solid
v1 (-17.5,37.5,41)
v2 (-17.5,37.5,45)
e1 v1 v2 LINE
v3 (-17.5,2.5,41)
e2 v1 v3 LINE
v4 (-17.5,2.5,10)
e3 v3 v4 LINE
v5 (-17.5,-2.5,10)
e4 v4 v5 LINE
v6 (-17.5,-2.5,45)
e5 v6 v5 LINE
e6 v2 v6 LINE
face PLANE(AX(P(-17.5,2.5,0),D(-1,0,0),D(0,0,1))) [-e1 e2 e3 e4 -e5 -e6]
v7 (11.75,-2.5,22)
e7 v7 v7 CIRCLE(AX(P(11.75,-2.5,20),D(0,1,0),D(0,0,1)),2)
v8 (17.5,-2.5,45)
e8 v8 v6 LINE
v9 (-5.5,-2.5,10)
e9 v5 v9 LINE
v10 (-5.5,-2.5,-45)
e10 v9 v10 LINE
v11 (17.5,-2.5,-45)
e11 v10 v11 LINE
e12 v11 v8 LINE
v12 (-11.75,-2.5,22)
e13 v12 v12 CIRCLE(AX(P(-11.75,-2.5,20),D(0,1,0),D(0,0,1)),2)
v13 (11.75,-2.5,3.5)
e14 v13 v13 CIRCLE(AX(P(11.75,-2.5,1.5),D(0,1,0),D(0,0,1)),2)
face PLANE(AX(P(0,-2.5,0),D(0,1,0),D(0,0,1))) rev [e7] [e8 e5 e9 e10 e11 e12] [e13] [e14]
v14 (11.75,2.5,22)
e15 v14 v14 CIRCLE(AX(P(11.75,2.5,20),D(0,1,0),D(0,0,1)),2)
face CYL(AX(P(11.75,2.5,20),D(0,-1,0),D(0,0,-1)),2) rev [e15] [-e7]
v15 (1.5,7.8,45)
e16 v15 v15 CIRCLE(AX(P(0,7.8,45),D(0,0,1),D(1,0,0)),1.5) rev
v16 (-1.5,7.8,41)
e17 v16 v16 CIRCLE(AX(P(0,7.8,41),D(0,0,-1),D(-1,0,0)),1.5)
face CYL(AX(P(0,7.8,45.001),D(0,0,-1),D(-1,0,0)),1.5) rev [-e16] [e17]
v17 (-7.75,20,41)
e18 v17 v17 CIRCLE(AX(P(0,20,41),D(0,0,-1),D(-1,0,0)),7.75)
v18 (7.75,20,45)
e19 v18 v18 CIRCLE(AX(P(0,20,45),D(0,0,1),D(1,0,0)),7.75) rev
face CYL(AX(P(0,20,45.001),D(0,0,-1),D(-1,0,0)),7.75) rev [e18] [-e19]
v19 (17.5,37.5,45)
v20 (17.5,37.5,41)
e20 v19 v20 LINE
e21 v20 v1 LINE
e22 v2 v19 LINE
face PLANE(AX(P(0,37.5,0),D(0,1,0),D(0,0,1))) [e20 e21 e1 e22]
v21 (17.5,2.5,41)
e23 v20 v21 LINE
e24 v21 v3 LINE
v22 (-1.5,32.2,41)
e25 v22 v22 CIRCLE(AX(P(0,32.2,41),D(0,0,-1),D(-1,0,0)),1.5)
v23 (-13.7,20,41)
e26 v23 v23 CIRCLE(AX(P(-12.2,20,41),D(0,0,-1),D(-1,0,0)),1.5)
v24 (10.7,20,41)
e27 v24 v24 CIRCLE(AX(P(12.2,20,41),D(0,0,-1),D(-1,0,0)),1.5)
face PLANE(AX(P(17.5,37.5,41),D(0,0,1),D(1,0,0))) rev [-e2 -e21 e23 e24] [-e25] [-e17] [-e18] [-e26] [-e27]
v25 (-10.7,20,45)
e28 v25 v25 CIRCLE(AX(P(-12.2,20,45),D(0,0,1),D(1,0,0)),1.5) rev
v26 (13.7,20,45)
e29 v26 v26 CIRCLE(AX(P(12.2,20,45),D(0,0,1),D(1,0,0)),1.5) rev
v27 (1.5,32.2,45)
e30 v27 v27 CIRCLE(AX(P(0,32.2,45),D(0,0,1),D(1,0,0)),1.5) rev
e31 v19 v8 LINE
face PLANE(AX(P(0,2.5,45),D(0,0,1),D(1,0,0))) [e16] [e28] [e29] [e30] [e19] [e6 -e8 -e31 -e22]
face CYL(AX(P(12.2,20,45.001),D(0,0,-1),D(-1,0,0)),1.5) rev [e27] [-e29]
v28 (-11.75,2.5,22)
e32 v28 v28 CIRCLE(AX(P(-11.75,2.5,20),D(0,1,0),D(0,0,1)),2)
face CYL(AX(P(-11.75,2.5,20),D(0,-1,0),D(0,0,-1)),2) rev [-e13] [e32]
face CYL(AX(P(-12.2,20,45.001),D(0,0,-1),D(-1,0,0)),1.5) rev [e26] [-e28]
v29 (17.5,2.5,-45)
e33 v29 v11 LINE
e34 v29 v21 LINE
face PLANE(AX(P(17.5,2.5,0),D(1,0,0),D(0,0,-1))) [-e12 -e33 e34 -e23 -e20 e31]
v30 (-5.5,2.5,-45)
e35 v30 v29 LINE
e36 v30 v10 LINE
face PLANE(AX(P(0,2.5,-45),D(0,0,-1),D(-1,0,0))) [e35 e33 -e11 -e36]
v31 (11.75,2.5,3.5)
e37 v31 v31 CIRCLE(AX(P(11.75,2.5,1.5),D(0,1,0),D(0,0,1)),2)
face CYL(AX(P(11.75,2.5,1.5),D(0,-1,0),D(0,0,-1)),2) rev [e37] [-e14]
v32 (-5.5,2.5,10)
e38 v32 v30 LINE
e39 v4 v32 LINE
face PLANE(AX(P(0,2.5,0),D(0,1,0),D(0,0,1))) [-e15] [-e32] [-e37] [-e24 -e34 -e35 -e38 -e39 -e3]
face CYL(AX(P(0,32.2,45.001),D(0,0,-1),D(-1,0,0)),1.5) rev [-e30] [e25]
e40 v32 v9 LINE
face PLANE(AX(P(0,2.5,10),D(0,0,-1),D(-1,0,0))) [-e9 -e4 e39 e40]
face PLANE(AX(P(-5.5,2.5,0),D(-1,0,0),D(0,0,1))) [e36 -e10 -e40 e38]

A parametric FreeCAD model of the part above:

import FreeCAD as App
import Part
import Sketcher
from FreeCAD import Vector
Q = App.Units.Quantity


def add_polygon(sketch, points):
    """Adds a closed chain of lines whose ends are joined by coincident constraints."""
    first, n = sketch.GeometryCount, len(points)
    for a, b in zip(points, points[1:] + points[:1]):
        sketch.addGeometry(Part.LineSegment(App.Vector(*a, 0), App.Vector(*b, 0)), False)
    for i in range(n):
        sketch.addConstraint(Sketcher.Constraint("Coincident", first + i, 2, first + (i + 1) % n, 1))

doc = App.newDocument("Part")
params = doc.addObject("Spreadsheet::Sheet", "Params")
for row, (alias, value) in enumerate([
    ("sketch1_diameter", "4 mm"),
    ("sketch1_width", "23 mm"),
    ("sketch1_width2", "12 mm"),
    ("sketch1_height", "55 mm"),
    ("pad1_length", "5 mm"),
    ("sketch2_width", "35 mm"),
    ("sketch2_height", "4 mm"),
    ("pad2_length", "35 mm"),
    ("sketch3_diameter", "3 mm"),
    ("sketch4_diameter", "3 mm"),
    ("sketch5_diameter", "3 mm"),
    ("sketch6_diameter", "15.5 mm"),
    ("sketch7_diameter", "3 mm"),
], start=1):
    params.set(f"A{row}", alias)
    params.set(f"B{row}", "=" + value)
    params.setAlias(f"B{row}", alias)

body = doc.addObject("PartDesign::Body", "Body")

sketch1 = body.newObject("Sketcher::SketchObject", "Sketch")
sketch1.AttachmentSupport = (doc.getObject("XZ_Plane"), [""])
sketch1.MapMode = "FlatFace"
add_polygon(sketch1, [(17.5, -45), (-5.5, -45), (-5.5, 10), (-17.5, 10), (-17.5, 45), (17.5, 45)])
sketch1.addGeometry(Part.Circle(Vector(-11.75, 20, 0), Vector(0, 0, 1), 2), False)
sketch1.addGeometry(Part.Circle(Vector(11.75, 20, 0), Vector(0, 0, 1), 2), False)
sketch1.addGeometry(Part.Circle(Vector(11.75, 1.5, 0), Vector(0, 0, 1), 2), False)
sketch1.addConstraint([
    Sketcher.Constraint("Horizontal", 0),
    Sketcher.Constraint("Vertical", 1),
    Sketcher.Constraint("Horizontal", 2),
    Sketcher.Constraint("Vertical", 3),
    Sketcher.Constraint("Horizontal", 4),
    Sketcher.Constraint("Vertical", 5),
    Sketcher.Constraint("Equal", 6, 7),
    Sketcher.Constraint("Equal", 7, 8),
    Sketcher.Constraint("Symmetric", 3, 2, 5, 2, -1, 1),
    Sketcher.Constraint("Symmetric", 6, 3, 7, 3, -2),
    Sketcher.Constraint("Vertical", 7, 3, 8, 3),
    Sketcher.Constraint("Equal", 4, 3),
    Sketcher.Constraint("Diameter", 6, Q("4 mm")),
    Sketcher.Constraint("DistanceX", 0, 2, 0, 1, Q("23 mm")),
    Sketcher.Constraint("DistanceX", 2, 2, 2, 1, Q("12 mm")),
    Sketcher.Constraint("DistanceY", 1, 1, 1, 2, Q("55 mm")),
    Sketcher.Constraint("DistanceY", -1, 1, 6, 3, Q("20 mm")),
    Sketcher.Constraint("DistanceY", -1, 1, 8, 3, Q("1.5 mm")),
    Sketcher.Constraint("DistanceX", 6, 3, 7, 3, Q("23.5 mm")),
])
sketch1.setExpression("Constraints[18]", "Params.sketch1_diameter")
sketch1.setExpression("Constraints[19]", "Params.sketch1_width")
sketch1.setExpression("Constraints[20]", "Params.sketch1_width2")
sketch1.setExpression("Constraints[21]", "Params.sketch1_height")
pad1 = body.newObject("PartDesign::Pad", "Pad")
pad1.Profile = sketch1
pad1.setExpression("Length", "Params.pad1_length")
pad1.Midplane = True

sketch2 = body.newObject("Sketcher::SketchObject", "Sketch001")
sketch2.AttachmentSupport = (doc.getObject("XZ_Plane"), [""])
sketch2.MapMode = "FlatFace"
sketch2.AttachmentOffset = App.Placement(Vector(0, 0, -2.5), App.Rotation())
add_polygon(sketch2, [(-17.5, 41), (-17.5, 45), (17.5, 45), (17.5, 41)])
sketch2.addConstraint([
    Sketcher.Constraint("Vertical", 0),
    Sketcher.Constraint("Horizontal", 1),
    Sketcher.Constraint("Vertical", 2),
    Sketcher.Constraint("Horizontal", 3),
    Sketcher.Constraint("DistanceX", 1, 1, 1, 2, Q("35 mm")),
    Sketcher.Constraint("DistanceY", 0, 1, 0, 2, Q("4 mm")),
    Sketcher.Constraint("DistanceY", -1, 1, 0, 2, Q("45 mm")),
    Sketcher.Constraint("DistanceX", 0, 2, -1, 1, Q("17.5 mm")),
])
sketch2.setExpression("Constraints[8]", "Params.sketch2_width")
sketch2.setExpression("Constraints[9]", "Params.sketch2_height")
pad2 = body.newObject("PartDesign::Pad", "Pad001")
pad2.Profile = sketch2
pad2.setExpression("Length", "Params.pad2_length")
pad2.Reversed = True

sketch3 = body.newObject("Sketcher::SketchObject", "Sketch002")
sketch3.AttachmentSupport = (doc.getObject("XY_Plane"), [""])
sketch3.MapMode = "FlatFace"
sketch3.AttachmentOffset = App.Placement(Vector(0, 0, 41), App.Rotation())
sketch3.addGeometry(Part.Circle(Vector(12.2, 20, 0), Vector(0, 0, 1), 1.5), False)
sketch3.addConstraint([
    Sketcher.Constraint("Diameter", 0, Q("3 mm")),
    Sketcher.Constraint("DistanceY", -1, 1, 0, 3, Q("20 mm")),
    Sketcher.Constraint("DistanceX", -1, 1, 0, 3, Q("12.2 mm")),
])
sketch3.setExpression("Constraints[0]", "Params.sketch3_diameter")
pocket1 = body.newObject("PartDesign::Pocket", "Pocket")
pocket1.Profile = sketch3
pocket1.Type = "UpToFirst"
pocket1.Reversed = True

sketch4 = body.newObject("Sketcher::SketchObject", "Sketch003")
sketch4.AttachmentSupport = (doc.getObject("XY_Plane"), [""])
sketch4.MapMode = "FlatFace"
sketch4.AttachmentOffset = App.Placement(Vector(0, 0, 41), App.Rotation())
sketch4.addGeometry(Part.Circle(Vector(0, 32.2, 0), Vector(0, 0, 1), 1.5), False)
sketch4.addConstraint([
    Sketcher.Constraint("PointOnObject", 0, 3, -2),
    Sketcher.Constraint("Diameter", 0, Q("3 mm")),
    Sketcher.Constraint("DistanceY", -1, 1, 0, 3, Q("32.2 mm")),
])
sketch4.setExpression("Constraints[1]", "Params.sketch4_diameter")
pocket2 = body.newObject("PartDesign::Pocket", "Pocket001")
pocket2.Profile = sketch4
pocket2.Type = "UpToFirst"
pocket2.Reversed = True

sketch5 = body.newObject("Sketcher::SketchObject", "Sketch004")
sketch5.AttachmentSupport = (doc.getObject("XY_Plane"), [""])
sketch5.MapMode = "FlatFace"
sketch5.AttachmentOffset = App.Placement(Vector(0, 0, 41), App.Rotation())
sketch5.addGeometry(Part.Circle(Vector(-12.2, 20, 0), Vector(0, 0, 1), 1.5), False)
sketch5.addConstraint([
    Sketcher.Constraint("Diameter", 0, Q("3 mm")),
    Sketcher.Constraint("DistanceY", -1, 1, 0, 3, Q("20 mm")),
    Sketcher.Constraint("DistanceX", 0, 3, -1, 1, Q("12.2 mm")),
])
sketch5.setExpression("Constraints[0]", "Params.sketch5_diameter")
pocket3 = body.newObject("PartDesign::Pocket", "Pocket002")
pocket3.Profile = sketch5
pocket3.Type = "UpToFirst"
pocket3.Reversed = True

sketch6 = body.newObject("Sketcher::SketchObject", "Sketch005")
sketch6.AttachmentSupport = (doc.getObject("XY_Plane"), [""])
sketch6.MapMode = "FlatFace"
sketch6.AttachmentOffset = App.Placement(Vector(0, 0, 41), App.Rotation())
sketch6.addGeometry(Part.Circle(Vector(0, 20, 0), Vector(0, 0, 1), 7.75), False)
sketch6.addConstraint([
    Sketcher.Constraint("PointOnObject", 0, 3, -2),
    Sketcher.Constraint("Diameter", 0, Q("15.5 mm")),
    Sketcher.Constraint("DistanceY", -1, 1, 0, 3, Q("20 mm")),
])
sketch6.setExpression("Constraints[1]", "Params.sketch6_diameter")
pocket4 = body.newObject("PartDesign::Pocket", "Pocket003")
pocket4.Profile = sketch6
pocket4.Type = "UpToFirst"
pocket4.Reversed = True

sketch7 = body.newObject("Sketcher::SketchObject", "Sketch006")
sketch7.AttachmentSupport = (doc.getObject("XY_Plane"), [""])
sketch7.MapMode = "FlatFace"
sketch7.AttachmentOffset = App.Placement(Vector(0, 0, 41), App.Rotation())
sketch7.addGeometry(Part.Circle(Vector(0, 7.8, 0), Vector(0, 0, 1), 1.5), False)
sketch7.addConstraint([
    Sketcher.Constraint("PointOnObject", 0, 3, -2),
    Sketcher.Constraint("Diameter", 0, Q("3 mm")),
    Sketcher.Constraint("DistanceY", -1, 1, 0, 3, Q("7.8 mm")),
])
sketch7.setExpression("Constraints[1]", "Params.sketch7_diameter")
pocket5 = body.newObject("PartDesign::Pocket", "Pocket004")
pocket5.Profile = sketch7
pocket5.Type = "UpToFirst"
pocket5.Reversed = True

doc.recompute()
